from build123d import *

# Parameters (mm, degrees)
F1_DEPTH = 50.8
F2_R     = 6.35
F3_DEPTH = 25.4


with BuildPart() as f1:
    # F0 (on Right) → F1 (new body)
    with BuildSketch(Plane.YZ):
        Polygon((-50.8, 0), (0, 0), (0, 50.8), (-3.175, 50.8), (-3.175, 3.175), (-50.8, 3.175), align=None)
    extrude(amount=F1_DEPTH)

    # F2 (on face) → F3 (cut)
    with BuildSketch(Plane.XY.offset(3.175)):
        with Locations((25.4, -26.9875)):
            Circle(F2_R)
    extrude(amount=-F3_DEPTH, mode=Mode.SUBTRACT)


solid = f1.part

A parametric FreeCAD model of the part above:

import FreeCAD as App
import Part
import Sketcher

V = App.Vector
Q = App.Units.Quantity

doc = App.newDocument("Part")
body = doc.addObject("PartDesign::Body", "Body")

# Sketch on YZ plane
sketch1 = body.newObject("Sketcher::SketchObject", "Sketch")
sketch1.AttachmentSupport = (doc.getObject("YZ_Plane"), [""])
sketch1.MapMode = "FlatFace"
sketch1.addGeometry(Part.LineSegment(V(-50.8, 0, 0), V(0, 0, 0)), False)
sketch1.addGeometry(Part.LineSegment(V(0, 0, 0), V(0, 50.8, 0)), False)
sketch1.addGeometry(Part.LineSegment(V(0, 50.8, 0), V(-3.2, 50.8, 0)), False)
sketch1.addGeometry(Part.LineSegment(V(-3.2, 50.8, 0), V(-3.2, 3.2, 0)), False)
sketch1.addGeometry(Part.LineSegment(V(-3.2, 3.2, 0), V(-50.8, 3.2, 0)), False)
sketch1.addGeometry(Part.LineSegment(V(-50.8, 3.2, 0), V(-50.8, 0, 0)), False)
sketch1.addConstraint(Sketcher.Constraint("Coincident", 0, 2, 1, 1))
sketch1.addConstraint(Sketcher.Constraint("Coincident", 1, 2, 2, 1))
sketch1.addConstraint(Sketcher.Constraint("Coincident", 2, 2, 3, 1))
sketch1.addConstraint(Sketcher.Constraint("Coincident", 3, 2, 4, 1))
sketch1.addConstraint(Sketcher.Constraint("Coincident", 4, 2, 5, 1))
sketch1.addConstraint(Sketcher.Constraint("Coincident", 5, 2, 0, 1))
sketch1.addConstraint(Sketcher.Constraint("Horizontal", 0))
sketch1.addConstraint(Sketcher.Constraint("Vertical", 1))
sketch1.addConstraint(Sketcher.Constraint("Horizontal", 2))
sketch1.addConstraint(Sketcher.Constraint("Vertical", 3))
sketch1.addConstraint(Sketcher.Constraint("Horizontal", 4))
sketch1.addConstraint(Sketcher.Constraint("Vertical", 5))
sketch1.addConstraint(Sketcher.Constraint("Coincident", 0, 2, -1, 1))
sketch1.addConstraint(Sketcher.Constraint("Equal", 0, 1))
sketch1.addConstraint(Sketcher.Constraint("Equal", 4, 3))
sketch1.addConstraint(Sketcher.Constraint("DistanceX", 0, 1, 0, 2, Q("2 in")))
sketch1.addConstraint(Sketcher.Constraint("DistanceX", 2, 2, 2, 1, Q("0.125 in")))
pad1 = body.newObject("PartDesign::Pad", "Pad")
pad1.Profile = sketch1
pad1.Length = Q("2 in")

# Sketch on XY plane
sketch2 = body.newObject("Sketcher::SketchObject", "Sketch001")
sketch2.AttachmentSupport = (doc.getObject("XY_Plane"), [""])
sketch2.MapMode = "FlatFace"
sketch2.AttachmentOffset = App.Placement(V(0, 0, 0.125 * 25.4), App.Rotation())
sketch2.addGeometry(Part.Circle(V(25, -27, 0), V(0, 0, 1), 6), False)
sketch2.addConstraint(Sketcher.Constraint("Diameter", 0, Q("0.5 in")))
sketch2.addConstraint(Sketcher.Constraint("DistanceX", -1, 1, 0, 3, Q("1 in")))
sketch2.addConstraint(Sketcher.Constraint("DistanceY", 0, 3, -1, 1, Q("1.0625 in")))
pocket1 = body.newObject("PartDesign::Pocket", "Pocket")
pocket1.Profile = sketch2
pocket1.Length = Q("1 in")

doc.recompute()
